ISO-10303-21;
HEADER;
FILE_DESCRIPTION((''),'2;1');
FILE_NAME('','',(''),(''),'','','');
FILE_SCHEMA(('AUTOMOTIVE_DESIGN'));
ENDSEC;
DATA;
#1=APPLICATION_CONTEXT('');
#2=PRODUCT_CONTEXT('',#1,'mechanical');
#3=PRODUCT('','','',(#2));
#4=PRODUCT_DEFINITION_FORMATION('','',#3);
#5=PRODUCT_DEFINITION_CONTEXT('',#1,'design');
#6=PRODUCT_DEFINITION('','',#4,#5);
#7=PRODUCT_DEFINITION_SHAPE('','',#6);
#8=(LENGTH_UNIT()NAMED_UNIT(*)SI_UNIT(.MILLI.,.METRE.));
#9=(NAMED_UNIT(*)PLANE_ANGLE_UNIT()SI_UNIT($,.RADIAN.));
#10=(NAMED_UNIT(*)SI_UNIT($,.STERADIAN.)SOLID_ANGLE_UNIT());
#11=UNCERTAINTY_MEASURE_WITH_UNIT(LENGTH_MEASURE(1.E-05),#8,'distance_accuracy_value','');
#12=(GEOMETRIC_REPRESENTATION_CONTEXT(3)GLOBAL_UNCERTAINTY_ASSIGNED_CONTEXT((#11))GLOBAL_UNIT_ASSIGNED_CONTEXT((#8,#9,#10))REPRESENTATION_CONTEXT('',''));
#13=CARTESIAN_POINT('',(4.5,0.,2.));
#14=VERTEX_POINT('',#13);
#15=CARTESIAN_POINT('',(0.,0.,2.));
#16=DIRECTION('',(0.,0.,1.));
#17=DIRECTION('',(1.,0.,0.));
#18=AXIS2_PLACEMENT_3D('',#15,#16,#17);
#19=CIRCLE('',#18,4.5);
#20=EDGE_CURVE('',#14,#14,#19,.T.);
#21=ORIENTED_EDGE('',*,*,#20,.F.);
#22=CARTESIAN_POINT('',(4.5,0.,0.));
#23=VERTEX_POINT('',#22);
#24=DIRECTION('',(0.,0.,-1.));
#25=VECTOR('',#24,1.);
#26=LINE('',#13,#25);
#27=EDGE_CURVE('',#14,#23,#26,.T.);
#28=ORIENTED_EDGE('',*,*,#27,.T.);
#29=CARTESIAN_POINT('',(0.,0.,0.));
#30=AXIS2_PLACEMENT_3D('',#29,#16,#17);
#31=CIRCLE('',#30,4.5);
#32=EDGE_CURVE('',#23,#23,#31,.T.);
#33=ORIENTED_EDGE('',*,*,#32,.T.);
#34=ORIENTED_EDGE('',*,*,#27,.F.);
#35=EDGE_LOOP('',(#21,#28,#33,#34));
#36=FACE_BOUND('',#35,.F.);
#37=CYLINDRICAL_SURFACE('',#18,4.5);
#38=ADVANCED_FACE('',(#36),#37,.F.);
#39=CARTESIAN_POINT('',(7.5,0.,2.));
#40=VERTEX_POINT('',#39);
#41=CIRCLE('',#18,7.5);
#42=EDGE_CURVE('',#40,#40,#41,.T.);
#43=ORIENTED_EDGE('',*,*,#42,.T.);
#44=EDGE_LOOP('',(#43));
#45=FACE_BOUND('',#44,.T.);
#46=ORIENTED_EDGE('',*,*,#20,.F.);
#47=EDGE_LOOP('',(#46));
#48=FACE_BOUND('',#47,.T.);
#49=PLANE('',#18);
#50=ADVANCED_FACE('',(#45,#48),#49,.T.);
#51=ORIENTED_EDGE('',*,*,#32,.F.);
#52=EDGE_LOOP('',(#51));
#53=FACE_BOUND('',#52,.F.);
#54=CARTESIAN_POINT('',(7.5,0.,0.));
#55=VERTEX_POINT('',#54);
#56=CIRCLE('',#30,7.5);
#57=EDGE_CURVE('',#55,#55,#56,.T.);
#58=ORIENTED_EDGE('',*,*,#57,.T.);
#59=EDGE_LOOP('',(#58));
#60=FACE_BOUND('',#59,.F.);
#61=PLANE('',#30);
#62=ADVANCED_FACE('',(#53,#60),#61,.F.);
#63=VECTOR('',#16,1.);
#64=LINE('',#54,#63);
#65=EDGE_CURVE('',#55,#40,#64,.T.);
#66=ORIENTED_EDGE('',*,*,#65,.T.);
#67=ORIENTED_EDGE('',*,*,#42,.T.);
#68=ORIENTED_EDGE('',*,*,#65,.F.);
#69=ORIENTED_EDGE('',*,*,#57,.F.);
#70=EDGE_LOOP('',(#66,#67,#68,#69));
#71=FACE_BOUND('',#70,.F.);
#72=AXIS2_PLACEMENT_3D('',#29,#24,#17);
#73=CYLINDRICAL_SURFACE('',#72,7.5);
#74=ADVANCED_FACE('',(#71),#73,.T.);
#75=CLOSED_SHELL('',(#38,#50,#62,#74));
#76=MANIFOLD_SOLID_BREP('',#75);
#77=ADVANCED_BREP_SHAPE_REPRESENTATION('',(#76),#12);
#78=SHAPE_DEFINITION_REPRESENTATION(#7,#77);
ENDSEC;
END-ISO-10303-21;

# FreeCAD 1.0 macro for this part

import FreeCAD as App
import Part
import Sketcher

V = App.Vector
Q = App.Units.Quantity

doc = App.newDocument("Part")
params = doc.addObject("Spreadsheet::Sheet", "Params")
for row, (alias, value) in enumerate([
    ("sketch1_diameter", "15 mm"),
    ("pad1_length", "2 mm"),
    ("sketch2_diameter", "9 mm"),
], start=1):
    params.set(f"A{row}", alias)
    params.set(f"B{row}", "=" + value)
    params.setAlias(f"B{row}", alias)

body = doc.addObject("PartDesign::Body", "Body")

# Sketch on XY plane
sketch1 = body.newObject("Sketcher::SketchObject", "Sketch")
sketch1.AttachmentSupport = (doc.getObject("XY_Plane"), [""])
sketch1.MapMode = "FlatFace"
sketch1.addGeometry(Part.Circle(V(0, 0, 0), V(0, 0, 1), 8), False)
sketch1.addConstraint(Sketcher.Constraint("Coincident", 0, 3, -1, 1))
sketch1.addConstraint(Sketcher.Constraint("Diameter", 0, Q("15 mm")))
sketch1.setExpression("Constraints[1]", "Params.sketch1_diameter")
pad1 = body.newObject("PartDesign::Pad", "Pad")
pad1.Profile = sketch1
pad1.setExpression("Length", "Params.pad1_length")

# Sketch on XY plane
sketch2 = body.newObject("Sketcher::SketchObject", "Sketch001")
sketch2.AttachmentSupport = (doc.getObject("XY_Plane"), [""])
sketch2.MapMode = "FlatFace"
sketch2.AttachmentOffset = App.Placement(V(0, 0, 2), App.Rotation())
sketch2.addGeometry(Part.Circle(V(0, 0, 0), V(0, 0, 1), 4.5), False)
sketch2.addConstraint(Sketcher.Constraint("Coincident", 0, 3, -1, 1))
sketch2.addConstraint(Sketcher.Constraint("Diameter", 0, Q("9 mm")))
sketch2.setExpression("Constraints[1]", "Params.sketch2_diameter")
pocket1 = body.newObject("PartDesign::Pocket", "Pocket")
pocket1.Profile = sketch2
pocket1.Type = "ThroughAll"

doc.recompute()
